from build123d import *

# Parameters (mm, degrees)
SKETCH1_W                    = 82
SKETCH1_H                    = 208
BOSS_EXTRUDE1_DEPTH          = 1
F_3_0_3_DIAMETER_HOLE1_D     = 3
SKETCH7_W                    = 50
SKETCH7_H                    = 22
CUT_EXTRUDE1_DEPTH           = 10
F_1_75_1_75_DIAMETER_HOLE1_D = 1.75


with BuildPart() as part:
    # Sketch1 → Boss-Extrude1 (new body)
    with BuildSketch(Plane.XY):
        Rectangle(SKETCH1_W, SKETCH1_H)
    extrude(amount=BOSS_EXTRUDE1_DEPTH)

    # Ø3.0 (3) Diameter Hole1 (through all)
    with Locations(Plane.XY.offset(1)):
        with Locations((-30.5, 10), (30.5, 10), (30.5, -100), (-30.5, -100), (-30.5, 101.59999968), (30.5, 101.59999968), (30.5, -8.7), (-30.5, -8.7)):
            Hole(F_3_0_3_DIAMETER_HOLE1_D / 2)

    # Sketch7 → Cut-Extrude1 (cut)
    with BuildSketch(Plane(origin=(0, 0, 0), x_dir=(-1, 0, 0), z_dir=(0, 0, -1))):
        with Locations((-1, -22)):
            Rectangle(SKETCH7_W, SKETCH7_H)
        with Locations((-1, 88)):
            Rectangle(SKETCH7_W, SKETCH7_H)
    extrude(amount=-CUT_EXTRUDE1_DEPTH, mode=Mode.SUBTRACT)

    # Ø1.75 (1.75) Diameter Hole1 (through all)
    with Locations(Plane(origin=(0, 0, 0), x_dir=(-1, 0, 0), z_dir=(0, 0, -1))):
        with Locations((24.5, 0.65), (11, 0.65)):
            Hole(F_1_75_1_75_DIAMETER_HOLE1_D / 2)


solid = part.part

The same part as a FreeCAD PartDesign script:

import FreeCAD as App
import Part
import Sketcher
from FreeCAD import Vector


def add_polygon(sketch, points):
    """Adds a closed chain of lines whose ends are joined by coincident constraints."""
    first, n = sketch.GeometryCount, len(points)
    for a, b in zip(points, points[1:] + points[:1]):
        sketch.addGeometry(Part.LineSegment(App.Vector(*a, 0), App.Vector(*b, 0)), False)
    for i in range(n):
        sketch.addConstraint(Sketcher.Constraint("Coincident", first + i, 2, first + (i + 1) % n, 1))

doc = App.newDocument("Part")
body = doc.addObject("PartDesign::Body", "Body")

sketch1 = doc.addObject("Sketcher::SketchObject", "Sketch")
body.addObject(sketch1)
sketch1.AttachmentSupport = (doc.XY_Plane, [""])
sketch1.MapMode = "FlatFace"
add_polygon(sketch1, [(-41, 104), (-41, -104), (41, -104), (41, 104)])
sketch1.addConstraint([
    Sketcher.Constraint("Vertical", 0),
    Sketcher.Constraint("Horizontal", 1),
    Sketcher.Constraint("Vertical", 2),
    Sketcher.Constraint("Horizontal", 3),
    Sketcher.Constraint("Symmetric", 0, 2, 2, 2, -1, 1),
    Sketcher.Constraint("DistanceX", 1, 1, 1, 2, 82.0),
    Sketcher.Constraint("DistanceY", 0, 2, 0, 1, 208.0),
])
pad1 = doc.addObject("PartDesign::Pad", "Pad")
body.addObject(pad1)
pad1.Profile = sketch1
pad1.Length = 1

sketch2 = doc.addObject("Sketcher::SketchObject", "Sketch001")
body.addObject(sketch2)
sketch2.AttachmentSupport = (doc.XY_Plane, [""])
sketch2.MapMode = "FlatFace"
sketch2.AttachmentOffset = App.Placement(Vector(0, 0, 1), App.Rotation())
sketch2.addGeometry([
    Part.Circle(Vector(-30.5, 10, 0), Vector(0, 0, 1), 1.5),
    Part.Circle(Vector(30.5, 10, 0), Vector(0, 0, 1), 1.5),
    Part.Circle(Vector(30.5, -100, 0), Vector(0, 0, 1), 1.5),
    Part.Circle(Vector(-30.5, -100, 0), Vector(0, 0, 1), 1.5),
    Part.Circle(Vector(-30.5, 101.6, 0), Vector(0, 0, 1), 1.5),
    Part.Circle(Vector(30.5, 101.6, 0), Vector(0, 0, 1), 1.5),
    Part.Circle(Vector(30.5, -8.7, 0), Vector(0, 0, 1), 1.5),
    Part.Circle(Vector(-30.5, -8.7, 0), Vector(0, 0, 1), 1.5),
], False)
sketch2.addConstraint([
    Sketcher.Constraint("Equal", 0, 1),
    Sketcher.Constraint("Equal", 1, 2),
    Sketcher.Constraint("Equal", 2, 3),
    Sketcher.Constraint("Equal", 3, 4),
    Sketcher.Constraint("Equal", 4, 5),
    Sketcher.Constraint("Equal", 5, 6),
    Sketcher.Constraint("Equal", 6, 7),
    Sketcher.Constraint("Symmetric", 0, 3, 1, 3, -2),
    Sketcher.Constraint("Symmetric", 2, 3, 3, 3, -2),
    Sketcher.Constraint("Symmetric", 4, 3, 5, 3, -2),
    Sketcher.Constraint("Symmetric", 6, 3, 7, 3, -2),
    Sketcher.Constraint("Vertical", 1, 3, 2, 3),
    Sketcher.Constraint("Vertical", 3, 3, 4, 3),
    Sketcher.Constraint("Vertical", 5, 3, 6, 3),
    Sketcher.Constraint("Diameter", 0, 3.0),
    Sketcher.Constraint("DistanceY", -1, 1, 0, 3, 10.0),
    Sketcher.Constraint("DistanceY", 2, 3, -1, 1, 100.0),
    Sketcher.Constraint("DistanceX", 0, 3, 1, 3, 61.0),
    Sketcher.Constraint("DistanceY", -1, 1, 4, 3, 101.6),
    Sketcher.Constraint("DistanceY", 6, 3, -1, 1, 8.7),
])
doc.recompute()
hole = doc.addObject("PartDesign::Hole", "Hole")
body.addObject(hole)
hole.Profile = sketch2
hole.ThreadType = "None"
hole.Diameter = 3
hole.DepthType = "ThroughAll"

sketch3 = doc.addObject("Sketcher::SketchObject", "Sketch002")
body.addObject(sketch3)
sketch3.AttachmentSupport = (doc.XY_Plane, [""])
sketch3.MapMode = "FlatFace"
add_polygon(sketch3, [(26, -11), (26, -33), (-24, -33), (-24, -11)])
add_polygon(sketch3, [(26, 99), (26, 77), (-24, 77), (-24, 99)])
sketch3.addConstraint([
    Sketcher.Constraint("Vertical", 0),
    Sketcher.Constraint("Horizontal", 1),
    Sketcher.Constraint("Vertical", 2),
    Sketcher.Constraint("Horizontal", 3),
    Sketcher.Constraint("Vertical", 4),
    Sketcher.Constraint("Horizontal", 5),
    Sketcher.Constraint("Vertical", 6),
    Sketcher.Constraint("Horizontal", 7),
    Sketcher.Constraint("Vertical", 3, 2, 4, 2),
    Sketcher.Constraint("Vertical", 2, 2, 5, 2),
    Sketcher.Constraint("Equal", 2, 4),
    Sketcher.Constraint("DistanceX", 1, 2, 1, 1, 50.0),
    Sketcher.Constraint("DistanceY", 0, 2, 0, 1, 22.0),
    Sketcher.Constraint("DistanceX", -1, 1, 0, 2, 26.0),
    Sketcher.Constraint("DistanceY", 0, 2, -1, 1, 33.0),
    Sketcher.Constraint("DistanceY", -1, 1, 4, 2, 77.0),
])
pocket1 = doc.addObject("PartDesign::Pocket", "Pocket")
body.addObject(pocket1)
pocket1.Profile = sketch3
pocket1.Length = 10
pocket1.Reversed = True

sketch4 = doc.addObject("Sketcher::SketchObject", "Sketch003")
body.addObject(sketch4)
sketch4.AttachmentSupport = (doc.XY_Plane, [""])
sketch4.MapMode = "FlatFace"
sketch4.addGeometry([
    Part.Circle(Vector(-24.5, 0.7, 0), Vector(0, 0, 1), 0.9),
    Part.Circle(Vector(-11, 0.7, 0), Vector(0, 0, 1), 0.9),
], False)
sketch4.addConstraint([
    Sketcher.Constraint("Equal", 0, 1),
    Sketcher.Constraint("Horizontal", 0, 3, 1, 3),
    Sketcher.Constraint("Diameter", 0, 1.75),
    Sketcher.Constraint("DistanceX", 1, 3, -1, 1, 11.0),
    Sketcher.Constraint("DistanceX", 0, 3, -1, 1, 24.5),
    Sketcher.Constraint("DistanceY", -1, 1, 0, 3, 0.65),
])
doc.recompute()
hole2 = doc.addObject("PartDesign::Hole", "Hole001")
body.addObject(hole2)
hole2.Profile = sketch4
hole2.ThreadType = "None"
hole2.Diameter = 1.75
hole2.DepthType = "ThroughAll"
hole2.Reversed = True

doc.recompute()
